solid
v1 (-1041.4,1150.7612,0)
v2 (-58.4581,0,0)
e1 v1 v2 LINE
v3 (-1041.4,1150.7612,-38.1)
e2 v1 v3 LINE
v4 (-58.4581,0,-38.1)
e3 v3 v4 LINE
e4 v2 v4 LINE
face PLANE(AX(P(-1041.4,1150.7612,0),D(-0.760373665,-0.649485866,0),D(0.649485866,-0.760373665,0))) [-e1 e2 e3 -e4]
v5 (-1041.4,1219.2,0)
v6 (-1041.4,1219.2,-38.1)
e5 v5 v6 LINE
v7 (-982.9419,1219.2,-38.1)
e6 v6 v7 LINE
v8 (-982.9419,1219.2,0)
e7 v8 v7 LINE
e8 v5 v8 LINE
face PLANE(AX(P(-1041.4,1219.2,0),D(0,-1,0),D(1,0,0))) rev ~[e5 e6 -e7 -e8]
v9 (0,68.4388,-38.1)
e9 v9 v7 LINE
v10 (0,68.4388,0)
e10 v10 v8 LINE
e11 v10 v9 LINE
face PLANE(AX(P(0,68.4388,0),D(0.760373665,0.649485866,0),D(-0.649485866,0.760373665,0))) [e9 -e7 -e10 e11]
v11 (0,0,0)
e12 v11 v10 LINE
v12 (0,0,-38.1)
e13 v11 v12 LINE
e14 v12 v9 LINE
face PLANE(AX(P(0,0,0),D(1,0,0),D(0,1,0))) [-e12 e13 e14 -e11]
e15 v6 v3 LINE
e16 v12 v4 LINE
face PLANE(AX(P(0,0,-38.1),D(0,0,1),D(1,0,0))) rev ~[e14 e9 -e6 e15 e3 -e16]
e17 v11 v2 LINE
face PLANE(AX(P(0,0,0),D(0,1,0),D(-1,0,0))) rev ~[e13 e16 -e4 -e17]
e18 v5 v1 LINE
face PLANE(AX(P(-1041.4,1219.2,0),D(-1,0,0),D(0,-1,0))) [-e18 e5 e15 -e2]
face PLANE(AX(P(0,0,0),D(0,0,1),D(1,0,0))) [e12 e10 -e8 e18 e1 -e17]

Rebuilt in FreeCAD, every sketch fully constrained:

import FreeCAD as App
import Part
import Sketcher
from FreeCAD import Vector
Q = App.Units.Quantity


def add_polygon(sketch, points):
    """Adds a closed chain of lines whose ends are joined by coincident constraints."""
    first, n = sketch.GeometryCount, len(points)
    for a, b in zip(points, points[1:] + points[:1]):
        sketch.addGeometry(Part.LineSegment(App.Vector(*a, 0), App.Vector(*b, 0)), False)
    for i in range(n):
        sketch.addConstraint(Sketcher.Constraint("Coincident", first + i, 2, first + (i + 1) % n, 1))

doc = App.newDocument("Part")
params = doc.addObject("Spreadsheet::Sheet", "Params")
for row, (alias, value) in enumerate([
    ("pad1_length", "1.5 in"),
], start=1):
    params.set(f"A{row}", alias)
    params.set(f"B{row}", "=" + value)
    params.setAlias(f"B{row}", alias)

body = doc.addObject("PartDesign::Body", "Body")

sketch1 = body.newObject("Sketcher::SketchObject", "Sketch")
sketch1.AttachmentSupport = (doc.getObject("XY_Plane"), [""])
sketch1.MapMode = "FlatFace"
add_polygon(sketch1, [(-983, 1219), (-1041, 1219), (-1041, 1151), (-58, 0), (0, 0), (0, 68)])
sketch1.addConstraint([
    Sketcher.Constraint("Horizontal", 0),
    Sketcher.Constraint("Vertical", 1),
    Sketcher.Constraint("Horizontal", 3),
    Sketcher.Constraint("Vertical", 4),
    Sketcher.Constraint("Coincident", 3, 2, -1, 1),
    Sketcher.Constraint("Parallel", 2, 5),
    Sketcher.Constraint("Equal", 0, 3),
    Sketcher.Constraint("DistanceX", 0, 2, -1, 1, Q("41 in")),
    Sketcher.Constraint("DistanceY", -1, 1, 0, 2, Q("48 in")),
    Sketcher.Constraint("DistanceX", 0, 2, 0, 1, Q("2.3015 in")),
    Sketcher.Constraint("DistanceY", 1, 2, 1, 1, 68.4388),
])
pad1 = body.newObject("PartDesign::Pad", "Pad")
pad1.Profile = sketch1
pad1.setExpression("Length", "Params.pad1_length")
pad1.Reversed = True

doc.recompute()
